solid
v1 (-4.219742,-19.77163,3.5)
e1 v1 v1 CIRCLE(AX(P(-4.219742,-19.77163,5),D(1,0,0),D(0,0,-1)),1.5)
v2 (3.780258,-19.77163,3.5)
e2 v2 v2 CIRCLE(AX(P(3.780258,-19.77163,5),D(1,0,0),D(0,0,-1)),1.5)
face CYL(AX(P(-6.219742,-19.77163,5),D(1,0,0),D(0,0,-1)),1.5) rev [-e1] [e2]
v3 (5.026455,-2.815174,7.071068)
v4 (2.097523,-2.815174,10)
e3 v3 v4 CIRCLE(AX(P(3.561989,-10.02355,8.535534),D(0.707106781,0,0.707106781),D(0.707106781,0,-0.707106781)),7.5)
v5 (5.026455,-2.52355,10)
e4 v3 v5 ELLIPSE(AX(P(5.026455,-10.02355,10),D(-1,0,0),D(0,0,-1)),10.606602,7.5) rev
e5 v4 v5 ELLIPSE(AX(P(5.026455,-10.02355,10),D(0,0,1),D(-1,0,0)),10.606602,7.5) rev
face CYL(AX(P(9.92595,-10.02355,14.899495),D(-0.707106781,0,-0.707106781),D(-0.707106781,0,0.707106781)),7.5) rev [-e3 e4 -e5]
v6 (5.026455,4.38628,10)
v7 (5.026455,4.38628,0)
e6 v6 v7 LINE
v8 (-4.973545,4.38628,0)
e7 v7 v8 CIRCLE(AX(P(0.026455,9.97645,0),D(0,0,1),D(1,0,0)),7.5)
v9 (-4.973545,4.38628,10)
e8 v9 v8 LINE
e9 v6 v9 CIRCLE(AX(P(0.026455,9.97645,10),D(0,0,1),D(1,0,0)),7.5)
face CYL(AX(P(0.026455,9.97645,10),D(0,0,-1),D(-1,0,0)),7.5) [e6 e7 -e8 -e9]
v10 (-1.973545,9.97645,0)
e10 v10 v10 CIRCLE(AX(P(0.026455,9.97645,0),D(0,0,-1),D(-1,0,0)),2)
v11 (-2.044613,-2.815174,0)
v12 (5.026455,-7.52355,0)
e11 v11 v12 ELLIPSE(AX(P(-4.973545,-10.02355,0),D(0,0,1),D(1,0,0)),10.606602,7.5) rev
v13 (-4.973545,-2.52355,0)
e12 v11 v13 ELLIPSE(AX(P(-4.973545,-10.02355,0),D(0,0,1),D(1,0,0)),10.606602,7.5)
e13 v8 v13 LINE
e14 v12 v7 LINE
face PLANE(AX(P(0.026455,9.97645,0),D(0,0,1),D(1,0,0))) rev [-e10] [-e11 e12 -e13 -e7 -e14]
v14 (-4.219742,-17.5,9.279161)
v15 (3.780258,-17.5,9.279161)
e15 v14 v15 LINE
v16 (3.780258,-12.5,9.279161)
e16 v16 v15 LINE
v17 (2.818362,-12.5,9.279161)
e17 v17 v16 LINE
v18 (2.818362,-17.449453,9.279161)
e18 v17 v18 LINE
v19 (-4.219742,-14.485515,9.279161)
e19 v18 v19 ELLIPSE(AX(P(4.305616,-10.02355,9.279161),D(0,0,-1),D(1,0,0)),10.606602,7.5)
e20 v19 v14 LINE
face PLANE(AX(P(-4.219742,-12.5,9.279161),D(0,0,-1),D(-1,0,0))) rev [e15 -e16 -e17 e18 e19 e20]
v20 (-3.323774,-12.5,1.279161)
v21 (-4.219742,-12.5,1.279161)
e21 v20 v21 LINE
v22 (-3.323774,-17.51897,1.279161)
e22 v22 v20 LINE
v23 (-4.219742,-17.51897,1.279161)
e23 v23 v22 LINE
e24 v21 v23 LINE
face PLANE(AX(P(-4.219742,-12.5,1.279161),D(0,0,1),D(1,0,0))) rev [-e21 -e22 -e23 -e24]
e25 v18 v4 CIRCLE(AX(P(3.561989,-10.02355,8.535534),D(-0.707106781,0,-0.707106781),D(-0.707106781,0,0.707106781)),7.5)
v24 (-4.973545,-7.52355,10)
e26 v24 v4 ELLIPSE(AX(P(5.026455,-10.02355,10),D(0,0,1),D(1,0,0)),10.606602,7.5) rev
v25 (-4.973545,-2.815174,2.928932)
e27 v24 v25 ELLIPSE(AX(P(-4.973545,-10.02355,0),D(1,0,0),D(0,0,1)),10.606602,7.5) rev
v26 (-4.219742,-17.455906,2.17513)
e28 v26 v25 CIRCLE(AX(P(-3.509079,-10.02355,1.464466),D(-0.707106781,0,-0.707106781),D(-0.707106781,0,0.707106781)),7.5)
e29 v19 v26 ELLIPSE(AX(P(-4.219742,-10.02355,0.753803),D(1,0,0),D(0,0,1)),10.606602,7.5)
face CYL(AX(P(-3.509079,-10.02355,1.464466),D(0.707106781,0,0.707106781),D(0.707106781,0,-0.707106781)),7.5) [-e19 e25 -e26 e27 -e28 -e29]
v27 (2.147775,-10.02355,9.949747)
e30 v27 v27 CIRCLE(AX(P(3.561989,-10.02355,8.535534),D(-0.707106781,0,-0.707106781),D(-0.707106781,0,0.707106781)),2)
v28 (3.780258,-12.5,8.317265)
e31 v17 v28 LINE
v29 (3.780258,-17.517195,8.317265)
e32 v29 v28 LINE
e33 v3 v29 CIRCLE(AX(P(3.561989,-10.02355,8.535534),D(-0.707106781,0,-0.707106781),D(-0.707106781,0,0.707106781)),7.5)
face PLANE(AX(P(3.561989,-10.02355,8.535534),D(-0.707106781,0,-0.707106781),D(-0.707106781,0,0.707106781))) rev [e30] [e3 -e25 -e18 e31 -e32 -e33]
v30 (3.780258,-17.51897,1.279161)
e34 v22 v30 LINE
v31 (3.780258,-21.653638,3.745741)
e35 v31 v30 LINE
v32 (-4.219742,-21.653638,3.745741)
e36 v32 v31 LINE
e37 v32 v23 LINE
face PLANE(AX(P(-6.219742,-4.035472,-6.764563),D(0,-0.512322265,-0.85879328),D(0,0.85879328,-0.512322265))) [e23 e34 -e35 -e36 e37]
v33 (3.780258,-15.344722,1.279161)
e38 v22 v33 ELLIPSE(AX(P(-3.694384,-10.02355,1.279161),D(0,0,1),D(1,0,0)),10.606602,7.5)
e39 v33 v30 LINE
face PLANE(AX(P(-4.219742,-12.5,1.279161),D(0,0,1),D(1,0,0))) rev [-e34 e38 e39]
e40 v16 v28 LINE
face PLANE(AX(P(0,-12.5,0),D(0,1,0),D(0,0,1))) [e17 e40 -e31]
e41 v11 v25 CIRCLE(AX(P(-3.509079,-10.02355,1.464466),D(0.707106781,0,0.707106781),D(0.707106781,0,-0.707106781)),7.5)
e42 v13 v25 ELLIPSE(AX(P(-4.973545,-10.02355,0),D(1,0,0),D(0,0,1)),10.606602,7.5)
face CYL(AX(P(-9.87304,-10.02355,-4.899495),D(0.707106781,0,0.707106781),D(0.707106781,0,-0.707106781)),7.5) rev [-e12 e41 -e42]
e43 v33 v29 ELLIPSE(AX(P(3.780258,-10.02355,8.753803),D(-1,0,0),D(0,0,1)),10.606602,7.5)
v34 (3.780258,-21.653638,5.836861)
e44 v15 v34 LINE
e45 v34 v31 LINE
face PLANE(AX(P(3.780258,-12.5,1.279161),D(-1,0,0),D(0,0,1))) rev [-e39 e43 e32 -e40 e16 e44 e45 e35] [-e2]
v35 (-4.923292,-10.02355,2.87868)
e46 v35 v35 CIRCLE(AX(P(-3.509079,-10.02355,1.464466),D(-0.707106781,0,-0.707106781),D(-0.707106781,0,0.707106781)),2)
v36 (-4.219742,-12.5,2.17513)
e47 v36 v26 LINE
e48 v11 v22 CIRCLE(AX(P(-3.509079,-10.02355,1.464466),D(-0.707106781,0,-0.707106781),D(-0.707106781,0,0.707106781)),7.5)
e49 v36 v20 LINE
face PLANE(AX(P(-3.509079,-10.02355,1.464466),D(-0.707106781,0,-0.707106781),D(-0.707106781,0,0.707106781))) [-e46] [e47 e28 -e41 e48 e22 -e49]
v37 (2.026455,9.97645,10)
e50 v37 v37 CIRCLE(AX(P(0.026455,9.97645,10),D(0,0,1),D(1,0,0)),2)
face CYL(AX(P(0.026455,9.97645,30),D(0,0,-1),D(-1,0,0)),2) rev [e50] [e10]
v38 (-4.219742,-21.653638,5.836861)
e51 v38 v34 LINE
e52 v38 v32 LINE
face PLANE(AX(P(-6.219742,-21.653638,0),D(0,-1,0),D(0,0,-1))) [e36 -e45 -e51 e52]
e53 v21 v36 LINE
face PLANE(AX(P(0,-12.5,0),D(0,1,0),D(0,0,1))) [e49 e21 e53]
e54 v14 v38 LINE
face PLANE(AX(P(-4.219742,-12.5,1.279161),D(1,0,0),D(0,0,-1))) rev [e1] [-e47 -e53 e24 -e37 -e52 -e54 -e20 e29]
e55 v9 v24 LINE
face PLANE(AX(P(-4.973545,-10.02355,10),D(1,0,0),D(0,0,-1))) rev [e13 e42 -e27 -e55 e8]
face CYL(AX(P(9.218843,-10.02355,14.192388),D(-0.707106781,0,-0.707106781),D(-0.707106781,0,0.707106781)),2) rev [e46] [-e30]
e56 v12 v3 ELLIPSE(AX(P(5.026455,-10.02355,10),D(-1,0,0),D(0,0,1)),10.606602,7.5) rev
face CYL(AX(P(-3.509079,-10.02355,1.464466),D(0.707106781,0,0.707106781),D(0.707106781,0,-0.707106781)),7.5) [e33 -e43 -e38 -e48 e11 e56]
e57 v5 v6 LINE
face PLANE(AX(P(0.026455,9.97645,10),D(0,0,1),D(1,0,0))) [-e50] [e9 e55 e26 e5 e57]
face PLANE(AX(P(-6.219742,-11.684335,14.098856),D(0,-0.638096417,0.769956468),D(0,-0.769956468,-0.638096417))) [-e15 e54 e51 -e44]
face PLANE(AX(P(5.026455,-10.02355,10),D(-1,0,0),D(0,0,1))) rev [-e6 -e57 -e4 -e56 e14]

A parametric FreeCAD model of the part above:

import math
import FreeCAD as App
import Part
import Sketcher

V = App.Vector


def add_polygon(sketch, points):
    """Adds a closed chain of lines whose ends are joined by coincident constraints."""
    first, n = sketch.GeometryCount, len(points)
    for a, b in zip(points, points[1:] + points[:1]):
        sketch.addGeometry(Part.LineSegment(App.Vector(*a, 0), App.Vector(*b, 0)), False)
    for i in range(n):
        sketch.addConstraint(Sketcher.Constraint("Coincident", first + i, 2, first + (i + 1) % n, 1))

doc = App.newDocument("Part")
params = doc.addObject("Spreadsheet::Sheet", "Params")
for row, (alias, value) in enumerate([
    ("sketch1_diameter", "3 mm"),
    ("sketch1_radius", "7.5 mm"),
    ("sketch1_width", "10 mm"),
    ("pad1_length", "10 mm"),
    ("sketch2_diameter", "4 mm"),
    ("pocket1_length", "30 mm"),
    ("sketch3_diameter", "15 mm"),
    ("pad2_length", "10 mm"),
    ("sketch4_diameter", "3 mm"),
    ("sketch5_diameter", "4 mm"),
    ("pocket3_length", "36 mm"),
    ("sketch6_diameter", "15 mm"),
    ("pocket4_length", "9 mm"),
    ("sketch7_width", "8 mm"),
    ("pad3_length", "10 mm"),
    ("sketch8_diameter", "3 mm"),
    ("sketch8_width", "5 mm"),
    ("sketch8_height", "8 mm"),
    ("pocket5_length", "10 mm"),
], start=1):
    params.set(f"A{row}", alias)
    params.set(f"B{row}", "=" + value)
    params.setAlias(f"B{row}", alias)

body = doc.addObject("PartDesign::Body", "Body")

sketch1 = doc.addObject("Sketcher::SketchObject", "Sketch")
body.addObject(sketch1)
sketch1.AttachmentSupport = (doc.XY_Plane, [""])
sketch1.MapMode = "FlatFace"
sketch1.addGeometry([
    Part.LineSegment(V(-5, -10, 0), V(5, -10, 0)),
    Part.LineSegment(V(5, -10, 0), V(5, 4.4, 0)),
    Part.ArcOfCircle(Part.Circle(V(0, 10, 0), V(0, 0, 1), 7.5), math.radians(-48), math.radians(228)),
    Part.LineSegment(V(-5, 4.4, 0), V(-5, -10, 0)),
    Part.Circle(V(0, 10, 0), V(0, 0, 1), 1.5),
], False)
sketch1.addConstraint([
    Sketcher.Constraint("Coincident", 0, 2, 1, 1),
    Sketcher.Constraint("Coincident", 1, 2, 2, 1),
    Sketcher.Constraint("Coincident", 2, 2, 3, 1),
    Sketcher.Constraint("Coincident", 3, 2, 0, 1),
    Sketcher.Constraint("Horizontal", 0),
    Sketcher.Constraint("Vertical", 1),
    Sketcher.Constraint("Vertical", 3),
    Sketcher.Constraint("Coincident", 4, 3, 2, 3),
    Sketcher.Constraint("Horizontal", 1, 2, 2, 2),
    Sketcher.Constraint("Diameter", 4, 3.0),
    Sketcher.Constraint("Radius", 2, 7.5),
    Sketcher.Constraint("DistanceX", 0, 1, 0, 2, 10.0),
    Sketcher.Constraint("DistanceY", 0, 2, 2, 3, 20.0),
    Sketcher.Constraint("DistanceY", -1, 1, 2, 3, 9.97645),
    Sketcher.Constraint("DistanceX", -1, 1, 2, 3, 0.026455),
])
sketch1.setExpression("Constraints[9]", "Params.sketch1_diameter")
sketch1.setExpression("Constraints[10]", "Params.sketch1_radius")
sketch1.setExpression("Constraints[11]", "Params.sketch1_width")
pad1 = doc.addObject("PartDesign::Pad", "Pad")
body.addObject(pad1)
pad1.Profile = sketch1
pad1.setExpression("Length", "Params.pad1_length")

sketch2 = doc.addObject("Sketcher::SketchObject", "Sketch001")
body.addObject(sketch2)
sketch2.AttachmentSupport = (doc.XY_Plane, [""])
sketch2.MapMode = "FlatFace"
sketch2.addGeometry(Part.Circle(V(0, 10, 0), V(0, 0, 1), 2), False)
sketch2.addConstraint([
    Sketcher.Constraint("Diameter", 0, 4.0),
    Sketcher.Constraint("DistanceY", -1, 1, 0, 3, 9.97645),
    Sketcher.Constraint("DistanceX", -1, 1, 0, 3, 0.026455),
])
sketch2.setExpression("Constraints[0]", "Params.sketch2_diameter")
pocket1 = doc.addObject("PartDesign::Pocket", "Pocket")
body.addObject(pocket1)
pocket1.Profile = sketch2
pocket1.setExpression("Length", "Params.pocket1_length")
pocket1.Reversed = True

sketch3 = doc.addObject("Sketcher::SketchObject", "Sketch002")
body.addObject(sketch3)
sketch3.Placement = App.Placement(V(2.513228, 0, 2.513228), App.Rotation(V(-0.707106781, 0, 0.707106781), V(0, 0.999999999, 0), V(-0.707106781, 0, -0.707106781), "ZXY"))
sketch3.addGeometry(Part.Circle(V(4, -10, 0), V(0, 0, 1), 8), False)
sketch3.addConstraint([
    Sketcher.Constraint("Diameter", 0, 15.0),
    Sketcher.Constraint("DistanceY", 0, 3, -1, 1, 10.02355),
    Sketcher.Constraint("DistanceX", -1, 1, 0, 3, 3.516827),
])
sketch3.setExpression("Constraints[0]", "Params.sketch3_diameter")
pad2 = doc.addObject("PartDesign::Pad", "Pad001")
body.addObject(pad2)
pad2.Profile = sketch3
pad2.setExpression("Length", "Params.pad2_length")
pad2.Midplane = True

sketch4 = doc.addObject("Sketcher::SketchObject", "Sketch003")
body.addObject(sketch4)
sketch4.Placement = App.Placement(V(-1.022306, 0, -1.022306), App.Rotation(V(-0.707106781, 0, 0.707106781), V(0, 0.999999999, 0), V(-0.707106781, 0, -0.707106781), "ZXY"))
sketch4.addGeometry(Part.Circle(V(3.5, -10, 0), V(0, 0, 1), 1.5), False)
sketch4.addConstraint([
    Sketcher.Constraint("Diameter", 0, 3.0),
    Sketcher.Constraint("DistanceY", 0, 3, -1, 1, 10.02355),
    Sketcher.Constraint("DistanceX", -1, 1, 0, 3, 3.516827),
])
sketch4.setExpression("Constraints[0]", "Params.sketch4_diameter")
pocket2 = doc.addObject("PartDesign::Pocket", "Pocket001")
body.addObject(pocket2)
pocket2.Profile = sketch4
pocket2.Type = "ThroughAll"
pocket2.Midplane = True

sketch5 = doc.addObject("Sketcher::SketchObject", "Sketch004")
body.addObject(sketch5)
sketch5.Placement = App.Placement(V(-1.022306, 0, -1.022306), App.Rotation(V(-0.707106781, 0, 0.707106781), V(0, 0.999999999, 0), V(-0.707106781, 0, -0.707106781), "ZXY"))
sketch5.addGeometry(Part.Circle(V(3.5, -10, 0), V(0, 0, 1), 2), False)
sketch5.addConstraint([
    Sketcher.Constraint("Diameter", 0, 4.0),
    Sketcher.Constraint("DistanceY", 0, 3, -1, 1, 10.02355),
    Sketcher.Constraint("DistanceX", -1, 1, 0, 3, 3.516827),
])
sketch5.setExpression("Constraints[0]", "Params.sketch5_diameter")
pocket3 = doc.addObject("PartDesign::Pocket", "Pocket002")
body.addObject(pocket3)
pocket3.Profile = sketch5
pocket3.setExpression("Length", "Params.pocket3_length")
pocket3.Midplane = True

sketch6 = doc.addObject("Sketcher::SketchObject", "Sketch005")
body.addObject(sketch6)
sketch6.Placement = App.Placement(V(6.048761, 0, 6.048761), App.Rotation(V(0.707106781, 0, -0.707106781), V(0, 0.999999999, 0), V(0.707106781, 0, 0.707106781), "ZXY"))
sketch6.addGeometry(Part.Circle(V(-4, -10, 0), V(0, 0, 1), 8), False)
sketch6.addConstraint([
    Sketcher.Constraint("Diameter", 0, 15.0),
    Sketcher.Constraint("DistanceY", 0, 3, -1, 1, 10.02355),
    Sketcher.Constraint("DistanceX", 0, 3, -1, 1, 3.516827),
])
sketch6.setExpression("Constraints[0]", "Params.sketch6_diameter")
pocket4 = doc.addObject("PartDesign::Pocket", "Pocket003")
body.addObject(pocket4)
pocket4.Profile = sketch6
pocket4.setExpression("Length", "Params.pocket4_length")
pocket4.Reversed = True
doc.recompute()

datumplane = doc.addObject("PartDesign::Plane", "DatumPlane")
body.addObject(datumplane)
datumplane.Placement = App.Placement(V(2.513228, 0, 2.513228), App.Rotation(V(0.707106781, 0, -0.707106781), V(0, -1, 0), V(-0.707106781, 0, -0.707106781), "ZXY"))
mirrored = doc.addObject("PartDesign::Mirrored", "Mirrored")
body.addObject(mirrored)
mirrored.Originals = [pocket4]
mirrored.MirrorPlane = (datumplane, [""])
body.Tip = mirrored

sketch7 = doc.addObject("Sketcher::SketchObject", "Sketch006")
body.addObject(sketch7)
sketch7.AttachmentSupport = (doc.XZ_Plane, [""])
sketch7.MapMode = "FlatFace"
sketch7.AttachmentOffset = App.Placement(V(0, 0, 17.5), App.Rotation())
add_polygon(sketch7, [(-4, 1), (-4, 9), (4, 9), (4, 1)])
sketch7.addConstraint([
    Sketcher.Constraint("Vertical", 0),
    Sketcher.Constraint("Horizontal", 1),
    Sketcher.Constraint("Vertical", 2),
    Sketcher.Constraint("Horizontal", 3),
    Sketcher.Constraint("Equal", 3, 0),
    Sketcher.Constraint("DistanceX", 1, 1, 1, 2, 8.0),
    Sketcher.Constraint("DistanceY", -1, 1, 0, 2, 9.279161),
    Sketcher.Constraint("DistanceX", 0, 2, -1, 1, 4.219742),
])
sketch7.setExpression("Constraints[9]", "Params.sketch7_width")
pad3 = doc.addObject("PartDesign::Pad", "Pad002")
body.addObject(pad3)
pad3.Profile = sketch7
pad3.setExpression("Length", "Params.pad3_length")
pad3.Midplane = True

sketch8 = doc.addObject("Sketcher::SketchObject", "Sketch007")
body.addObject(sketch8)
sketch8.AttachmentSupport = (doc.YZ_Plane, [""])
sketch8.MapMode = "FlatFace"
sketch8.AttachmentOffset = App.Placement(V(0, 0, 3.780258), App.Rotation())
sketch8.addGeometry(Part.Circle(V(-19.8, 5, 0), V(0, 0, 1), 1.5), False)
add_polygon(sketch8, [(-21.7, 5.8), (-17.5, 9.3), (-22.5, 9.3), (-22.5, 1.3), (-17.5, 1.3), (-21.7, 3.7)])
sketch8.addConstraint([
    Sketcher.Constraint("Horizontal", 2),
    Sketcher.Constraint("Vertical", 3),
    Sketcher.Constraint("Horizontal", 4),
    Sketcher.Constraint("Vertical", 6),
    Sketcher.Constraint("Diameter", 0, 3.0),
    Sketcher.Constraint("DistanceX", 2, 2, 2, 1, 5.0),
    Sketcher.Constraint("DistanceY", 3, 2, 3, 1, 8.0),
    Sketcher.Constraint("DistanceY", -1, 1, 0, 3, 5.0),
    Sketcher.Constraint("DistanceX", 1, 2, -1, 1, 17.5),
    Sketcher.Constraint("DistanceX", 4, 1, 4, 2, 4.98103),
    Sketcher.Constraint("DistanceY", 6, 1, 6, 2, 2.09112),
    Sketcher.Constraint("DistanceY", 6, 2, 2, 2, 3.4423),
    Sketcher.Constraint("Distance", 1, 5.39464),
    Sketcher.Constraint("DistanceX", 0, 3, -1, 1, 19.77163),
    Sketcher.Constraint("DistanceY", -1, 1, 1, 2, 9.279161),
])
sketch8.setExpression("Constraints[10]", "Params.sketch8_diameter")
sketch8.setExpression("Constraints[11]", "Params.sketch8_width")
sketch8.setExpression("Constraints[12]", "Params.sketch8_height")
pocket5 = doc.addObject("PartDesign::Pocket", "Pocket004")
body.addObject(pocket5)
pocket5.Profile = sketch8
pocket5.setExpression("Length", "Params.pocket5_length")

doc.recompute()
